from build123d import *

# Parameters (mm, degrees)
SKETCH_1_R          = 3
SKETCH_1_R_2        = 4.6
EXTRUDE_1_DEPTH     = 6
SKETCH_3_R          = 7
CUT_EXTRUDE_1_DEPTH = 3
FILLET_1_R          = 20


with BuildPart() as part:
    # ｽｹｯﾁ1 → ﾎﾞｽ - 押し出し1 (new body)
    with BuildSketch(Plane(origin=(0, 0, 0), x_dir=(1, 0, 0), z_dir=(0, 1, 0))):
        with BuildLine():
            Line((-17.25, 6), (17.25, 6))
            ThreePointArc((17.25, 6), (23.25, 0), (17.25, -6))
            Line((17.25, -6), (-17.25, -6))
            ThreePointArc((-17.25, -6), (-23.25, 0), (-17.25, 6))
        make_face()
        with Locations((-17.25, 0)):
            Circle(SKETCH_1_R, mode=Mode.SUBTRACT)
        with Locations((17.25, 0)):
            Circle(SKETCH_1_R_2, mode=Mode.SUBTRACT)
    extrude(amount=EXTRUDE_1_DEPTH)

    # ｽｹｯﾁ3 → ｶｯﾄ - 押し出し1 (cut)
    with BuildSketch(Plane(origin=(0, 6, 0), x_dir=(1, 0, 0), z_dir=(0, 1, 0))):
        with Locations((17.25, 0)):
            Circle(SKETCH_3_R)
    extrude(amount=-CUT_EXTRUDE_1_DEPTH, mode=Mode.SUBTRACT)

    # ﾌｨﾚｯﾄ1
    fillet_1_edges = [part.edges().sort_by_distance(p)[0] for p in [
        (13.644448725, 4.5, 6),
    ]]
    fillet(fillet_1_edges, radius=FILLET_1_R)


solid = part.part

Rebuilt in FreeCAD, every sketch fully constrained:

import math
import FreeCAD as App
import Part
import Sketcher
from FreeCAD import Vector


def edges_at(feature, points):
    """Names of the edges that pass closest to the given points."""
    edges = feature.Shape.Edges
    near = lambda p: min(range(len(edges)), key=lambda i: edges[i].distToShape(Part.Vertex(*p))[0])
    return sorted({f"Edge{near(p) + 1}" for p in points})

doc = App.newDocument("Part")
body = doc.addObject("PartDesign::Body", "Body")

sketch1 = body.newObject("Sketcher::SketchObject", "Sketch")
sketch1.AttachmentSupport = (doc.getObject("XZ_Plane"), [""])
sketch1.MapMode = "FlatFace"
sketch1.addGeometry(Part.LineSegment(Vector(17.2, -6, 0), Vector(-17.2, -6, 0)), False)
sketch1.addGeometry(Part.ArcOfCircle(Part.Circle(Vector(-17.2, 0, 0), Vector(0, 0, 1), 6), math.radians(90), math.radians(270)), False)
sketch1.addGeometry(Part.LineSegment(Vector(-17.2, 6, 0), Vector(17.2, 6, 0)), False)
sketch1.addGeometry(Part.ArcOfCircle(Part.Circle(Vector(17.2, 0, 0), Vector(0, 0, 1), 6), math.radians(-90), math.radians(90)), False)
sketch1.addGeometry(Part.Circle(Vector(17.2, 0, 0), Vector(0, 0, 1), 4.6), False)
sketch1.addGeometry(Part.Circle(Vector(-17.2, 0, 0), Vector(0, 0, 1), 3), False)
sketch1.addConstraint(Sketcher.Constraint("Tangent", 0, 2, 1, 2))
sketch1.addConstraint(Sketcher.Constraint("Tangent", 1, 1, 2, 1))
sketch1.addConstraint(Sketcher.Constraint("Tangent", 2, 2, 3, 2))
sketch1.addConstraint(Sketcher.Constraint("Tangent", 3, 1, 0, 1))
sketch1.addConstraint(Sketcher.Constraint("Horizontal", 0))
sketch1.addConstraint(Sketcher.Constraint("Horizontal", 2))
sketch1.addConstraint(Sketcher.Constraint("Coincident", 4, 3, 3, 3))
sketch1.addConstraint(Sketcher.Constraint("Coincident", 5, 3, 1, 3))
sketch1.addConstraint(Sketcher.Constraint("Symmetric", 1, 3, 3, 3, -1, 1))
sketch1.addConstraint(Sketcher.Constraint("Diameter", 5, 6.0))
sketch1.addConstraint(Sketcher.Constraint("Radius", 1, 6.0))
sketch1.addConstraint(Sketcher.Constraint("Diameter", 4, 9.2))
sketch1.addConstraint(Sketcher.Constraint("DistanceX", 0, 2, 0, 1, 34.5))
pad1 = body.newObject("PartDesign::Pad", "Pad")
pad1.Profile = sketch1
pad1.Length = 6
pad1.Reversed = True

sketch2 = body.newObject("Sketcher::SketchObject", "Sketch001")
sketch2.AttachmentSupport = (doc.getObject("XZ_Plane"), [""])
sketch2.MapMode = "FlatFace"
sketch2.AttachmentOffset = App.Placement(Vector(0, 0, -6), App.Rotation())
sketch2.addGeometry(Part.Circle(Vector(17, 0, 0), Vector(0, 0, 1), 7), False)
sketch2.addConstraint(Sketcher.Constraint("PointOnObject", 0, 3, -1))
sketch2.addConstraint(Sketcher.Constraint("Diameter", 0, 14.0))
sketch2.addConstraint(Sketcher.Constraint("DistanceX", -1, 1, 0, 3, 17.25))
pocket1 = body.newObject("PartDesign::Pocket", "Pocket")
pocket1.Profile = sketch2
pocket1.Length = 3
pocket1.Reversed = True
doc.recompute()

fillet = body.newObject("PartDesign::Fillet", "Fillet")
fillet.Base = (pocket1, edges_at(pocket1, [(13.644, 4.5, 6)]))
fillet.Radius = 20

doc.recompute()
